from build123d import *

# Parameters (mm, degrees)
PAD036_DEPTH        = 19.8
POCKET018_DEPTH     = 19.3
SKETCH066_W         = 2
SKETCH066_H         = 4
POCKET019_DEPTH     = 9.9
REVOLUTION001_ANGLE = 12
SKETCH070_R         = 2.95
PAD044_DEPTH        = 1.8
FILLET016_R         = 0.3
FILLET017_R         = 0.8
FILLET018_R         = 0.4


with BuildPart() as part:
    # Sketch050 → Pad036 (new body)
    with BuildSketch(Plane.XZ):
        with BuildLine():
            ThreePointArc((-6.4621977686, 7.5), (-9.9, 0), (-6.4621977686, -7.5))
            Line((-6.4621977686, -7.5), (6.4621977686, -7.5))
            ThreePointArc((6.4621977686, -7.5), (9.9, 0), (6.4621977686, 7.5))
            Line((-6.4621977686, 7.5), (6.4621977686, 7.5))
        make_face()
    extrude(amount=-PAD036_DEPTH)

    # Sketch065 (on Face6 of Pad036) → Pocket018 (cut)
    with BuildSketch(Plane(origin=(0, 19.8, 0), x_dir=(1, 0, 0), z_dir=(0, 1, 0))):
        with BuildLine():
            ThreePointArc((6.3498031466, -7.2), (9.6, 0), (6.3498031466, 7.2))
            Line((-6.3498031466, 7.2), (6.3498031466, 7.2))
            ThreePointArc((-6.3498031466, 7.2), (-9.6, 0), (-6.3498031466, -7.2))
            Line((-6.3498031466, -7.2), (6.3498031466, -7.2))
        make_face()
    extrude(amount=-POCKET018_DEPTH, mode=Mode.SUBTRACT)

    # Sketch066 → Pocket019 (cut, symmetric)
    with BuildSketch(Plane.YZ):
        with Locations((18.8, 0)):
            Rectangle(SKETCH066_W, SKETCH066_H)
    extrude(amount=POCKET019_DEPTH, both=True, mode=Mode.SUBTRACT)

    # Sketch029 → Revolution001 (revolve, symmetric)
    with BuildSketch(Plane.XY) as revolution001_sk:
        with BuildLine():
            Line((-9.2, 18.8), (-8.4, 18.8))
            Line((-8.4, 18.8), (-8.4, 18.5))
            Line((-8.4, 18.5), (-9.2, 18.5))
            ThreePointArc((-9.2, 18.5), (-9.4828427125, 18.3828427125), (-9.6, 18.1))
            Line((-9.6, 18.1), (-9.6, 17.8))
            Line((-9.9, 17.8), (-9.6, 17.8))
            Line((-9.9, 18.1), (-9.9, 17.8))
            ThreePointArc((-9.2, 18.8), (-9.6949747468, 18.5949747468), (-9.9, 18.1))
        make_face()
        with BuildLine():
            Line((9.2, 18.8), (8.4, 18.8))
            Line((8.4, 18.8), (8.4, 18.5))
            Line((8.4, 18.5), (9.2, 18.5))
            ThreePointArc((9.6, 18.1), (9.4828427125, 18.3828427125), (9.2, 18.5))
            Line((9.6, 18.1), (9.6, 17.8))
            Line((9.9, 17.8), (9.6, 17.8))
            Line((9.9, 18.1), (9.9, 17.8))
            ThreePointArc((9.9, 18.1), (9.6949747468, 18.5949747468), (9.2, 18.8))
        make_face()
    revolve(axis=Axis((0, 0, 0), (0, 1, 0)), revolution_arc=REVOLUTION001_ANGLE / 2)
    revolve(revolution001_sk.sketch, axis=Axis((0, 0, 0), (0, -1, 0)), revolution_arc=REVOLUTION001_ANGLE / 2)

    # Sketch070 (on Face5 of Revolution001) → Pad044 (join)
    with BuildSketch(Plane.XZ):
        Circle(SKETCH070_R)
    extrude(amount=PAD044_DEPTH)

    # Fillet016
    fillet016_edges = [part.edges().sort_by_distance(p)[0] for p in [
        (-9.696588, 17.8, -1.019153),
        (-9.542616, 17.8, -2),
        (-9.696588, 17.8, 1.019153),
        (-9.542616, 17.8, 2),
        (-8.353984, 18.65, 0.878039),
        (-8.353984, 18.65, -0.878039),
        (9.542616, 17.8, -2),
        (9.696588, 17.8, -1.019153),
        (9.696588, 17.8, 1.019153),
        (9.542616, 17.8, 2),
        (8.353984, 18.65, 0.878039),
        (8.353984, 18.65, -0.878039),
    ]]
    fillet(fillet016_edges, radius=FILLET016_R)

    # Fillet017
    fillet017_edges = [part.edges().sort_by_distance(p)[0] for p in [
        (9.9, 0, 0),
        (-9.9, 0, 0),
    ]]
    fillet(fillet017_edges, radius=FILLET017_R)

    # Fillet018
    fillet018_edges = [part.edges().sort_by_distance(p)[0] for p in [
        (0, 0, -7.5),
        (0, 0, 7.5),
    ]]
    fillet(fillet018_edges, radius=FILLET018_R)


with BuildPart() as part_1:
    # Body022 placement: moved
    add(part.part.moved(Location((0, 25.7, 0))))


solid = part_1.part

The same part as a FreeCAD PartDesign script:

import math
import FreeCAD as App
import Part
import Sketcher
Q = App.Units.Quantity


def edges_at(feature, points):
    """Names of the edges that pass closest to the given points."""
    edges = feature.Shape.Edges
    near = lambda p: min(range(len(edges)), key=lambda i: edges[i].distToShape(Part.Vertex(*p))[0])
    return sorted({f"Edge{near(p) + 1}" for p in points})

doc = App.newDocument("Part")
body = doc.addObject("PartDesign::Body", "Body")

sketch1 = body.newObject("Sketcher::SketchObject", "Sketch")
sketch1.AttachmentSupport = (doc.getObject("XZ_Plane"), [""])
sketch1.MapMode = "FlatFace"
sketch1.addGeometry([
    Part.ArcOfCircle(Part.Circle(App.Vector(0, 0, 0), App.Vector(0, 0, 1), 10), math.radians(131), math.radians(229)),
    Part.LineSegment(App.Vector(-6, -8, 0), App.Vector(6, -8, 0)),
    Part.ArcOfCircle(Part.Circle(App.Vector(0, 0, 0), App.Vector(0, 0, 1), 10), math.radians(-49), math.radians(49)),
    Part.LineSegment(App.Vector(6, 8, 0), App.Vector(-6, 8, 0)),
], False)
sketch1.addConstraint([
    Sketcher.Constraint("Coincident", 0, 2, 1, 1),
    Sketcher.Constraint("Coincident", 1, 2, 2, 1),
    Sketcher.Constraint("Coincident", 2, 2, 3, 1),
    Sketcher.Constraint("Coincident", 3, 2, 0, 1),
    Sketcher.Constraint("Horizontal", 1),
    Sketcher.Constraint("Horizontal", 3),
    Sketcher.Constraint("Coincident", 0, 3, -1, 1),
    Sketcher.Constraint("Coincident", 2, 3, -1, 1),
    Sketcher.Constraint("Equal", 0, 2),
    Sketcher.Constraint("Vertical", 1, 2, 2, 2),
    Sketcher.Constraint("Radius", 0, Q("9.9 mm")),
    Sketcher.Constraint("DistanceY", 1, 2, 2, 2, Q("15 mm")),
])
pad1 = body.newObject("PartDesign::Pad", "Pad")
pad1.Profile = sketch1
pad1.Length = 19.8
pad1.Reversed = True

sketch2 = body.newObject("Sketcher::SketchObject", "Sketch001")
sketch2.AttachmentSupport = (doc.getObject("XZ_Plane"), [""])
sketch2.MapMode = "FlatFace"
sketch2.AttachmentOffset = App.Placement(App.Vector(0, 0, -19.8), App.Rotation())
sketch2.addGeometry([
    Part.ArcOfCircle(Part.Circle(App.Vector(0, 0, 0), App.Vector(0, 0, 1), 10), math.radians(-49), math.radians(49)),
    Part.LineSegment(App.Vector(6, -7, 0), App.Vector(-6, -7, 0)),
    Part.ArcOfCircle(Part.Circle(App.Vector(0, 0, 0), App.Vector(0, 0, 1), 10), math.radians(131), math.radians(229)),
    Part.LineSegment(App.Vector(-6, 7, 0), App.Vector(6, 7, 0)),
], False)
sketch2.addConstraint([
    Sketcher.Constraint("Coincident", 0, 1, 1, 1),
    Sketcher.Constraint("Coincident", 1, 2, 2, 2),
    Sketcher.Constraint("Coincident", 2, 1, 3, 1),
    Sketcher.Constraint("Coincident", 3, 2, 0, 2),
    Sketcher.Constraint("Horizontal", 1),
    Sketcher.Constraint("Horizontal", 3),
    Sketcher.Constraint("Coincident", 0, 3, -1, 1),
    Sketcher.Constraint("Coincident", 2, 3, -1, 1),
    Sketcher.Constraint("Equal", 0, 2),
    Sketcher.Constraint("Vertical", 1, 2, 2, 1),
    Sketcher.Constraint("Radius", 0, Q("9.6 mm")),
    Sketcher.Constraint("DistanceY", 0, 1, -1, 1, Q("7.2 mm")),
])
pocket1 = body.newObject("PartDesign::Pocket", "Pocket")
pocket1.Profile = sketch2
pocket1.Length = 19.3
pocket1.Reversed = True

sketch3 = body.newObject("Sketcher::SketchObject", "Sketch002")
sketch3.AttachmentSupport = (doc.getObject("YZ_Plane"), [""])
sketch3.MapMode = "FlatFace"
sketch3.addGeometry([
    Part.LineSegment(App.Vector(17.8, 2, 0), App.Vector(17.8, -2, 0)),
    Part.LineSegment(App.Vector(17.8, -2, 0), App.Vector(19.8, -2, 0)),
    Part.LineSegment(App.Vector(19.8, -2, 0), App.Vector(19.8, 2, 0)),
    Part.LineSegment(App.Vector(19.8, 2, 0), App.Vector(17.8, 2, 0)),
], False)
sketch3.addConstraint([
    Sketcher.Constraint("Coincident", 0, 2, 1, 1),
    Sketcher.Constraint("Coincident", 1, 2, 2, 1),
    Sketcher.Constraint("Coincident", 2, 2, 3, 1),
    Sketcher.Constraint("Coincident", 3, 2, 0, 1),
    Sketcher.Constraint("Vertical", 0),
    Sketcher.Constraint("Horizontal", 1),
    Sketcher.Constraint("Vertical", 2),
    Sketcher.Constraint("Horizontal", 3),
    Sketcher.Constraint("DistanceX", 1, 1, 1, 2, Q("2 mm")),
    Sketcher.Constraint("DistanceY", 0, 2, 0, 1, Q("4 mm")),
    Sketcher.Constraint("DistanceY", 0, 2, -1, 1, Q("2 mm")),
    Sketcher.Constraint("DistanceX", -1, 1, 0, 2, Q("17.8 mm")),
])
pocket2 = body.newObject("PartDesign::Pocket", "Pocket001")
pocket2.Profile = sketch3
pocket2.Length = 19.8
pocket2.Midplane = True

sketch4 = body.newObject("Sketcher::SketchObject", "Sketch003")
sketch4.AttachmentSupport = (doc.getObject("XY_Plane"), [""])
sketch4.MapMode = "FlatFace"
sketch4.addGeometry([
    Part.LineSegment(App.Vector(-8.4, 18.8, 0), App.Vector(-9.2, 18.8, 0)),
    Part.ArcOfCircle(Part.Circle(App.Vector(-9.2, 18.1, 0), App.Vector(0, 0, 1), 0.7), math.radians(90), math.radians(180)),
    Part.LineSegment(App.Vector(-9.9, 18.1, 0), App.Vector(-9.9, 17.8, 0)),
    Part.LineSegment(App.Vector(-9.9, 17.8, 0), App.Vector(-9.6, 17.8, 0)),
    Part.LineSegment(App.Vector(-9.6, 17.8, 0), App.Vector(-9.6, 18.1, 0)),
    Part.ArcOfCircle(Part.Circle(App.Vector(-9.2, 18.1, 0), App.Vector(0, 0, 1), 0.4), math.radians(90), math.radians(180)),
    Part.LineSegment(App.Vector(-9.2, 18.5, 0), App.Vector(-8.4, 18.5, 0)),
    Part.LineSegment(App.Vector(-8.4, 18.5, 0), App.Vector(-8.4, 18.8, 0)),
    Part.LineSegment(App.Vector(9.2, 18.8, 0), App.Vector(8.4, 18.8, 0)),
    Part.LineSegment(App.Vector(8.4, 18.8, 0), App.Vector(8.4, 18.5, 0)),
    Part.LineSegment(App.Vector(8.4, 18.5, 0), App.Vector(9.2, 18.5, 0)),
    Part.ArcOfCircle(Part.Circle(App.Vector(9.2, 18.1, 0), App.Vector(0, 0, 1), 0.4), math.radians(0), math.radians(90)),
    Part.LineSegment(App.Vector(9.6, 18.1, 0), App.Vector(9.6, 17.8, 0)),
    Part.LineSegment(App.Vector(9.6, 17.8, 0), App.Vector(9.9, 17.8, 0)),
    Part.LineSegment(App.Vector(9.9, 17.8, 0), App.Vector(9.9, 18.1, 0)),
    Part.ArcOfCircle(Part.Circle(App.Vector(9.2, 18.1, 0), App.Vector(0, 0, 1), 0.7), math.radians(0), math.radians(90)),
], False)
sketch4.addConstraint([
    Sketcher.Constraint("Tangent", 0, 2, 1, 1),
    Sketcher.Constraint("Tangent", 1, 2, 2, 1),
    Sketcher.Constraint("Coincident", 2, 2, 3, 1),
    Sketcher.Constraint("Coincident", 3, 2, 4, 1),
    Sketcher.Constraint("Tangent", 4, 2, 5, 2),
    Sketcher.Constraint("Tangent", 5, 1, 6, 1),
    Sketcher.Constraint("Coincident", 6, 2, 7, 1),
    Sketcher.Constraint("Coincident", 7, 2, 0, 1),
    Sketcher.Constraint("Coincident", 8, 2, 9, 1),
    Sketcher.Constraint("Coincident", 9, 2, 10, 1),
    Sketcher.Constraint("Tangent", 10, 2, 11, 2),
    Sketcher.Constraint("Tangent", 11, 1, 12, 1),
    Sketcher.Constraint("Coincident", 12, 2, 13, 1),
    Sketcher.Constraint("Coincident", 13, 2, 14, 1),
    Sketcher.Constraint("Tangent", 14, 2, 15, 1),
    Sketcher.Constraint("Tangent", 15, 2, 8, 1),
    Sketcher.Constraint("Horizontal", 0),
    Sketcher.Constraint("Vertical", 2),
    Sketcher.Constraint("Horizontal", 3),
    Sketcher.Constraint("Vertical", 4),
    Sketcher.Constraint("Horizontal", 6),
    Sketcher.Constraint("Vertical", 7),
    Sketcher.Constraint("Horizontal", 8),
    Sketcher.Constraint("Vertical", 9),
    Sketcher.Constraint("Horizontal", 10),
    Sketcher.Constraint("Vertical", 12),
    Sketcher.Constraint("Horizontal", 13),
    Sketcher.Constraint("Vertical", 14),
    Sketcher.Constraint("Coincident", 5, 3, 1, 3),
    Sketcher.Constraint("Coincident", 15, 3, 11, 3),
    Sketcher.Constraint("Equal", 5, 11),
    Sketcher.Constraint("Equal", 1, 15),
    Sketcher.Constraint("Symmetric", 1, 3, 11, 3, -2),
    Sketcher.Constraint("Horizontal", 3, 2, 12, 2),
    Sketcher.Constraint("Equal", 6, 8),
    Sketcher.Constraint("Equal", 13, 2),
    Sketcher.Constraint("Radius", 1, Q("0.7 mm")),
    Sketcher.Constraint("Radius", 5, Q("0.4 mm")),
    Sketcher.Constraint("DistanceX", 0, 2, 0, 1, Q("0.8 mm")),
    Sketcher.Constraint("DistanceX", 1, 3, -1, 1, Q("9.2 mm")),
    Sketcher.Constraint("DistanceY", -1, 1, 1, 3, Q("18.1 mm")),
])
revolution = body.newObject("PartDesign::Revolution", "Revolution")
revolution.Profile = sketch4
revolution.ReferenceAxis = (sketch4, ["V_Axis"])
revolution.Angle = 6

sketch5 = body.newObject("Sketcher::SketchObject", "Sketch004")
sketch5.AttachmentSupport = (doc.getObject("XY_Plane"), [""])
sketch5.MapMode = "FlatFace"
sketch5.addGeometry([
    Part.LineSegment(App.Vector(-8.4, 18.8, 0), App.Vector(-9.2, 18.8, 0)),
    Part.ArcOfCircle(Part.Circle(App.Vector(-9.2, 18.1, 0), App.Vector(0, 0, 1), 0.7), math.radians(90), math.radians(180)),
    Part.LineSegment(App.Vector(-9.9, 18.1, 0), App.Vector(-9.9, 17.8, 0)),
    Part.LineSegment(App.Vector(-9.9, 17.8, 0), App.Vector(-9.6, 17.8, 0)),
    Part.LineSegment(App.Vector(-9.6, 17.8, 0), App.Vector(-9.6, 18.1, 0)),
    Part.ArcOfCircle(Part.Circle(App.Vector(-9.2, 18.1, 0), App.Vector(0, 0, 1), 0.4), math.radians(90), math.radians(180)),
    Part.LineSegment(App.Vector(-9.2, 18.5, 0), App.Vector(-8.4, 18.5, 0)),
    Part.LineSegment(App.Vector(-8.4, 18.5, 0), App.Vector(-8.4, 18.8, 0)),
    Part.LineSegment(App.Vector(9.2, 18.8, 0), App.Vector(8.4, 18.8, 0)),
    Part.LineSegment(App.Vector(8.4, 18.8, 0), App.Vector(8.4, 18.5, 0)),
    Part.LineSegment(App.Vector(8.4, 18.5, 0), App.Vector(9.2, 18.5, 0)),
    Part.ArcOfCircle(Part.Circle(App.Vector(9.2, 18.1, 0), App.Vector(0, 0, 1), 0.4), math.radians(0), math.radians(90)),
    Part.LineSegment(App.Vector(9.6, 18.1, 0), App.Vector(9.6, 17.8, 0)),
    Part.LineSegment(App.Vector(9.6, 17.8, 0), App.Vector(9.9, 17.8, 0)),
    Part.LineSegment(App.Vector(9.9, 17.8, 0), App.Vector(9.9, 18.1, 0)),
    Part.ArcOfCircle(Part.Circle(App.Vector(9.2, 18.1, 0), App.Vector(0, 0, 1), 0.7), math.radians(0), math.radians(90)),
], False)
sketch5.addConstraint([
    Sketcher.Constraint("Tangent", 0, 2, 1, 1),
    Sketcher.Constraint("Tangent", 1, 2, 2, 1),
    Sketcher.Constraint("Coincident", 2, 2, 3, 1),
    Sketcher.Constraint("Coincident", 3, 2, 4, 1),
    Sketcher.Constraint("Tangent", 4, 2, 5, 2),
    Sketcher.Constraint("Tangent", 5, 1, 6, 1),
    Sketcher.Constraint("Coincident", 6, 2, 7, 1),
    Sketcher.Constraint("Coincident", 7, 2, 0, 1),
    Sketcher.Constraint("Coincident", 8, 2, 9, 1),
    Sketcher.Constraint("Coincident", 9, 2, 10, 1),
    Sketcher.Constraint("Tangent", 10, 2, 11, 2),
    Sketcher.Constraint("Tangent", 11, 1, 12, 1),
    Sketcher.Constraint("Coincident", 12, 2, 13, 1),
    Sketcher.Constraint("Coincident", 13, 2, 14, 1),
    Sketcher.Constraint("Tangent", 14, 2, 15, 1),
    Sketcher.Constraint("Tangent", 15, 2, 8, 1),
    Sketcher.Constraint("Horizontal", 0),
    Sketcher.Constraint("Vertical", 2),
    Sketcher.Constraint("Horizontal", 3),
    Sketcher.Constraint("Vertical", 4),
    Sketcher.Constraint("Horizontal", 6),
    Sketcher.Constraint("Vertical", 7),
    Sketcher.Constraint("Horizontal", 8),
    Sketcher.Constraint("Vertical", 9),
    Sketcher.Constraint("Horizontal", 10),
    Sketcher.Constraint("Vertical", 12),
    Sketcher.Constraint("Horizontal", 13),
    Sketcher.Constraint("Vertical", 14),
    Sketcher.Constraint("Coincident", 5, 3, 1, 3),
    Sketcher.Constraint("Coincident", 15, 3, 11, 3),
    Sketcher.Constraint("Equal", 5, 11),
    Sketcher.Constraint("Equal", 1, 15),
    Sketcher.Constraint("Symmetric", 1, 3, 11, 3, -2),
    Sketcher.Constraint("Horizontal", 3, 2, 12, 2),
    Sketcher.Constraint("Equal", 6, 8),
    Sketcher.Constraint("Equal", 13, 2),
    Sketcher.Constraint("Radius", 1, Q("0.7 mm")),
    Sketcher.Constraint("Radius", 5, Q("0.4 mm")),
    Sketcher.Constraint("DistanceX", 0, 2, 0, 1, Q("0.8 mm")),
    Sketcher.Constraint("DistanceX", 1, 3, -1, 1, Q("9.2 mm")),
    Sketcher.Constraint("DistanceY", -1, 1, 1, 3, Q("18.1 mm")),
])
revolution2 = body.newObject("PartDesign::Revolution", "Revolution001")
revolution2.Profile = sketch5
revolution2.ReferenceAxis = (sketch5, ["V_Axis"])
revolution2.Angle = 6
revolution2.Reversed = True

sketch6 = body.newObject("Sketcher::SketchObject", "Sketch005")
sketch6.AttachmentSupport = (doc.getObject("XZ_Plane"), [""])
sketch6.MapMode = "FlatFace"
sketch6.addGeometry(Part.Circle(App.Vector(0, 0, 0), App.Vector(0, 0, 1), 3), False)
sketch6.addConstraint([
    Sketcher.Constraint("Coincident", 0, 3, -1, 1),
    Sketcher.Constraint("Diameter", 0, Q("5.9 mm")),
])
pad2 = body.newObject("PartDesign::Pad", "Pad001")
pad2.Profile = sketch6
pad2.Length = 1.8
doc.recompute()

fillet = body.newObject("PartDesign::Fillet", "Fillet")
fillet.Base = (pad2, edges_at(pad2, [
    (-9.697, 17.8, -1.019),
    (-9.543, 17.8, -2),
    (-9.697, 17.8, 1.019),
    (-9.543, 17.8, 2),
    (-8.354, 18.65, 0.878),
    (-8.354, 18.65, -0.878),
    (9.543, 17.8, -2),
    (9.697, 17.8, -1.019),
    (9.697, 17.8, 1.019),
    (9.543, 17.8, 2),
    (8.354, 18.65, 0.878),
    (8.354, 18.65, -0.878),
]))
fillet.Radius = 0.3
doc.recompute()

fillet2 = body.newObject("PartDesign::Fillet", "Fillet001")
fillet2.Base = (fillet, edges_at(fillet, [(9.9, 0, 0), (-9.9, 0, 0)]))
fillet2.Radius = 0.8
doc.recompute()

fillet3 = body.newObject("PartDesign::Fillet", "Fillet002")
fillet3.Base = (fillet2, edges_at(fillet2, [(0, 0, -7.5), (0, 0, 7.5)]))
fillet3.Radius = 0.4
body2 = doc.addObject("PartDesign::Body", "Body001")
doc.recompute()

body.Placement = App.Placement(App.Vector(0, 25.7, 0), App.Rotation(App.Vector(0, 0, 1), 0))
boolean = body2.newObject("PartDesign::Boolean", "Boolean")
boolean.Type = "Fuse"
boolean.addObjects([body])

doc.recompute()
